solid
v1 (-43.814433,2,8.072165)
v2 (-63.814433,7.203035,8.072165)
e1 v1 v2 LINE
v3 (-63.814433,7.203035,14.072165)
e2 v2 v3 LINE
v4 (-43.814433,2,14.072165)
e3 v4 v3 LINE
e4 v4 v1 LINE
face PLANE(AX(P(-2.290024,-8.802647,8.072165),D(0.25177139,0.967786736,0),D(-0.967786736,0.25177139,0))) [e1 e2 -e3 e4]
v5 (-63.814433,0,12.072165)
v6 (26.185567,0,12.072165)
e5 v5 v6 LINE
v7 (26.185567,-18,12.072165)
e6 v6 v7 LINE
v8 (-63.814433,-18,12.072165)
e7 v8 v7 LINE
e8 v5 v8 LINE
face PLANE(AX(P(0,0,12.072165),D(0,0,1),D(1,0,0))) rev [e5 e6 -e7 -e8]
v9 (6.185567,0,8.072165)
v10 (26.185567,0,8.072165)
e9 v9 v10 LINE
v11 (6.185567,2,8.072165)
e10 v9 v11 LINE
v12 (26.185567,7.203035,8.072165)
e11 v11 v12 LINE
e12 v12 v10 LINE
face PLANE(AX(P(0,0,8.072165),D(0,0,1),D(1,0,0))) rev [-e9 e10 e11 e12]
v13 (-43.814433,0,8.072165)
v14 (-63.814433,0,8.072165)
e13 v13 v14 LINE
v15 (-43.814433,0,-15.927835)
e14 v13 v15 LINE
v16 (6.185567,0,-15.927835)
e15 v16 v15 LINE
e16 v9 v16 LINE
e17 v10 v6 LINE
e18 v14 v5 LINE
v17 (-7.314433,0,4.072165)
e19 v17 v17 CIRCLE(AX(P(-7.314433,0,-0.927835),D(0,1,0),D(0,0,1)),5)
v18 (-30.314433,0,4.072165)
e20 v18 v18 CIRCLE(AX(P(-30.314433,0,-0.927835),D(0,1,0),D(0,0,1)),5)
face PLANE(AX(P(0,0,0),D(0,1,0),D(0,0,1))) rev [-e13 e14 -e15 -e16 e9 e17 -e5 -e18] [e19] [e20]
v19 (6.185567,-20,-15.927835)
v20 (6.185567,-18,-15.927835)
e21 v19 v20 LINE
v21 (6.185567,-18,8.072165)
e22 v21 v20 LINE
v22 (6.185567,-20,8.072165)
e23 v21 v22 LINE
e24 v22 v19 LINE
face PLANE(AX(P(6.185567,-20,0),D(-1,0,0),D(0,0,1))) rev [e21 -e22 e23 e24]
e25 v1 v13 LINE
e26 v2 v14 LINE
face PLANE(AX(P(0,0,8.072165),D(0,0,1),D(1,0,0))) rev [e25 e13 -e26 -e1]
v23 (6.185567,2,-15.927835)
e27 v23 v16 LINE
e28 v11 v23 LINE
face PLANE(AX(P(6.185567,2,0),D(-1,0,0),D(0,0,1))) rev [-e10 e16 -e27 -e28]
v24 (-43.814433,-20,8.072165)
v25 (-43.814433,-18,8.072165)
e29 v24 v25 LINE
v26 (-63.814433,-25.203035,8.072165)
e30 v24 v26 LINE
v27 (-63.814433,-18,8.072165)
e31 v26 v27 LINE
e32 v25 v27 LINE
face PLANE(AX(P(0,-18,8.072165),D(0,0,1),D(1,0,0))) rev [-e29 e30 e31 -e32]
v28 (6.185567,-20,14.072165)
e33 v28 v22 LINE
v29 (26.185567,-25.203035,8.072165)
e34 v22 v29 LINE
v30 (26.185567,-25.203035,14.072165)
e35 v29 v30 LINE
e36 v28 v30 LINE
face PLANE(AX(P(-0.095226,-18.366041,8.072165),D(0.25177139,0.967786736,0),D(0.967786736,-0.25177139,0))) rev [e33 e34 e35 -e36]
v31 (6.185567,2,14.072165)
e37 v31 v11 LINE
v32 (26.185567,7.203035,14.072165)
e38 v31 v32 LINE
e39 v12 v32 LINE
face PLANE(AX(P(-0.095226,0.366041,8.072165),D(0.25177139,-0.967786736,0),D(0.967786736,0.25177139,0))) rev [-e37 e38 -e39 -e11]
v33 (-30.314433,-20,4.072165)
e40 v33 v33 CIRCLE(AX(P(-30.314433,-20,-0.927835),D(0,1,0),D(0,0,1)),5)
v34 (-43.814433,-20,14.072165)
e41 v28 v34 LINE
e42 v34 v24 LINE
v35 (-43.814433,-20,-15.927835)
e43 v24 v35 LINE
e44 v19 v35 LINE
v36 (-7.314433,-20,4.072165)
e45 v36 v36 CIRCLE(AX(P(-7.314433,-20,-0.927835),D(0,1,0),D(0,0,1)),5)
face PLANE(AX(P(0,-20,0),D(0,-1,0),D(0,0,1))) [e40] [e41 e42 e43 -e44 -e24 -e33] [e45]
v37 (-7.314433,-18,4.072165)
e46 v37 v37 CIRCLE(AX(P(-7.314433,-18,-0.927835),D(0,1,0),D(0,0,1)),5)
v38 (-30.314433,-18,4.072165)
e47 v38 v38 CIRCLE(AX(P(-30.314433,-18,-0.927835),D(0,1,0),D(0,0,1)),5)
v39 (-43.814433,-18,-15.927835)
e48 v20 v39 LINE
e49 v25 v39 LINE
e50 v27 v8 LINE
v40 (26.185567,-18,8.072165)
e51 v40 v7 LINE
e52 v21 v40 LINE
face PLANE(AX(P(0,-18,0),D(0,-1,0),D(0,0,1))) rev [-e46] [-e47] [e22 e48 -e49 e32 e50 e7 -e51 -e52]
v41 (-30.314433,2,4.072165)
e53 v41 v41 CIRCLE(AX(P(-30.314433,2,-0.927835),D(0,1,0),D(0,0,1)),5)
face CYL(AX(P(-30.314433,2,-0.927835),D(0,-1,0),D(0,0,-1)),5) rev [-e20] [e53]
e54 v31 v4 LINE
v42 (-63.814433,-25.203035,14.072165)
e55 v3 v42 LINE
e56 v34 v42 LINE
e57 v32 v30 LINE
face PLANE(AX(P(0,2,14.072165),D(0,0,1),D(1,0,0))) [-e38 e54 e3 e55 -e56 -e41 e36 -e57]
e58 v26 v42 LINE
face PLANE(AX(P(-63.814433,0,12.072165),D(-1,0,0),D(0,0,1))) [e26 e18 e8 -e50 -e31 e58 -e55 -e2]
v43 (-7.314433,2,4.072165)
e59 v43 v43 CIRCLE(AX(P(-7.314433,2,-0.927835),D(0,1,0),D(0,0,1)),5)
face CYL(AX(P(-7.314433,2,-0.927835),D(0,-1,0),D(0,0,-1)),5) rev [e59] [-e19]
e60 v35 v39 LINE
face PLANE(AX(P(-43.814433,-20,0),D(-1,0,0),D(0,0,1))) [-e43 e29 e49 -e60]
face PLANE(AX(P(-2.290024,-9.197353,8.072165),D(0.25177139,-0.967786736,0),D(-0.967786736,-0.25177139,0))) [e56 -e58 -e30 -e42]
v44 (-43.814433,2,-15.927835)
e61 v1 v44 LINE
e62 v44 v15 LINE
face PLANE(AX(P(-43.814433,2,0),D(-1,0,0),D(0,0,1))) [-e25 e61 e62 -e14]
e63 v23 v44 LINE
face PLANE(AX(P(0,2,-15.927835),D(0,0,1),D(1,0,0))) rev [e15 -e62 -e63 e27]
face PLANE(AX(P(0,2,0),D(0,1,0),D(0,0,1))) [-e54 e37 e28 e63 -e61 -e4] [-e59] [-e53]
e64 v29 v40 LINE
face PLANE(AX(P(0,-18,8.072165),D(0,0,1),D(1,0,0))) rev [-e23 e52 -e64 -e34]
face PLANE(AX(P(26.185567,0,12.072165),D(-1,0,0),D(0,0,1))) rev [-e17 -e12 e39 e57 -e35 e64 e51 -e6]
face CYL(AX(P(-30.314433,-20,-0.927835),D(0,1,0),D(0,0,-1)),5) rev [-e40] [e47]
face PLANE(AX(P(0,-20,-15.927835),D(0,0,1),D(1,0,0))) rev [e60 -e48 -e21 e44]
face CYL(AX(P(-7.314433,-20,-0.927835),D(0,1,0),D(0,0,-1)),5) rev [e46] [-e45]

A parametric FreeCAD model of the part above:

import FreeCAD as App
import Part
import Sketcher
from FreeCAD import Vector
Q = App.Units.Quantity


def add_polygon(sketch, points):
    """Adds a closed chain of lines whose ends are joined by coincident constraints."""
    first, n = sketch.GeometryCount, len(points)
    for a, b in zip(points, points[1:] + points[:1]):
        sketch.addGeometry(Part.LineSegment(App.Vector(*a, 0), App.Vector(*b, 0)), False)
    for i in range(n):
        sketch.addConstraint(Sketcher.Constraint("Coincident", first + i, 2, first + (i + 1) % n, 1))

doc = App.newDocument("Part")
body = doc.addObject("PartDesign::Body", "Body")

# Sketch on XZ plane
sketch1 = body.newObject("Sketcher::SketchObject", "Sketch")
sketch1.AttachmentSupport = (doc.getObject("XZ_Plane"), [""])
sketch1.MapMode = "FlatFace"
add_polygon(sketch1, [(-44, -16), (-44, 14), (6, 14), (6, -16)])  # lines 0-3
sketch1.addGeometry(Part.Circle(Vector(-30, -1, 0), Vector(0, 0, 1), 5), False)  # 4
sketch1.addGeometry(Part.Circle(Vector(-7, -1, 0), Vector(0, 0, 1), 5), False)  # 5
sketch1.addConstraint([
    Sketcher.Constraint("Vertical", 0),
    Sketcher.Constraint("Horizontal", 1),
    Sketcher.Constraint("Vertical", 2),
    Sketcher.Constraint("Horizontal", 3),
    Sketcher.Constraint("Equal", 4, 5),
    Sketcher.Constraint("Horizontal", 4, 3, 5, 3),
    Sketcher.Constraint("Diameter", 4, Q("10 mm")),
    Sketcher.Constraint("DistanceX", 1, 1, 1, 2, Q("50 mm")),
    Sketcher.Constraint("DistanceY", 0, 1, 0, 2, Q("30 mm")),
    Sketcher.Constraint("DistanceX", 4, 3, 5, 3, Q("23 mm")),
    Sketcher.Constraint("DistanceY", 4, 3, 0, 2, Q("15 mm")),
    Sketcher.Constraint("DistanceX", 0, 2, 4, 3, Q("13.5 mm")),
    Sketcher.Constraint("DistanceX", 4, 3, -1, 1, Q("30.314433 mm")),
    Sketcher.Constraint("DistanceY", 4, 3, -1, 1, Q("0.927835 mm")),
])
pad1 = body.newObject("PartDesign::Pad", "Pad")
pad1.Profile = sketch1
pad1.Length = 2
pad1.Reversed = True

# Sketch on XY plane
sketch2 = body.newObject("Sketcher::SketchObject", "Sketch001")
sketch2.AttachmentSupport = (doc.getObject("XY_Plane"), [""])
sketch2.MapMode = "FlatFace"
sketch2.AttachmentOffset = App.Placement(Vector(0, 0, 14.072165), App.Rotation())
add_polygon(sketch2, [(26, -9), (26, 0), (-64, 0), (-64, -9)])  # lines 0-3
sketch2.addConstraint([
    Sketcher.Constraint("Vertical", 0),
    Sketcher.Constraint("Horizontal", 1),
    Sketcher.Constraint("Vertical", 2),
    Sketcher.Constraint("Horizontal", 3),
    Sketcher.Constraint("PointOnObject", 0, 2, -1),
    Sketcher.Constraint("DistanceX", 1, 2, 1, 1, Q("90 mm")),
    Sketcher.Constraint("DistanceY", 0, 1, 0, 2, Q("9 mm")),
    Sketcher.Constraint("DistanceX", -1, 1, 0, 2, Q("26.185567 mm")),
])
pad2 = body.newObject("PartDesign::Pad", "Pad001")
pad2.Profile = sketch2
pad2.Length = 2
pad2.Reversed = True

# Sketch on XY plane
sketch3 = body.newObject("Sketcher::SketchObject", "Sketch002")
sketch3.AttachmentSupport = (doc.getObject("XY_Plane"), [""])
sketch3.MapMode = "FlatFace"
sketch3.AttachmentOffset = App.Placement(Vector(0, 0, 14.072165), App.Rotation())
add_polygon(sketch3, [(26.2, 0), (26.2, 7.2), (6.2, 2), (6.2, 0)])  # lines 0-3
add_polygon(sketch3, [(-43.8, 2), (-63.8, 7.2), (-63.8, 0), (-43.8, 0)])  # lines 4-7
sketch3.addConstraint([
    Sketcher.Constraint("Vertical", 0),
    Sketcher.Constraint("Vertical", 2),
    Sketcher.Constraint("Horizontal", 3),
    Sketcher.Constraint("Vertical", 5),
    Sketcher.Constraint("Horizontal", 6),
    Sketcher.Constraint("Vertical", 7),
    Sketcher.Constraint("PointOnObject", 2, 2, -1),
    Sketcher.Constraint("PointOnObject", 5, 2, -1),
    Sketcher.Constraint("Horizontal", 0, 2, 4, 2),
    Sketcher.Constraint("Horizontal", 1, 2, 7, 2),
    Sketcher.Constraint("Equal", 3, 6),
    Sketcher.Constraint("DistanceX", 3, 1, 3, 2, Q("20 mm")),
    Sketcher.Constraint("DistanceY", 2, 2, 2, 1, Q("2 mm")),
    Sketcher.Constraint("DistanceX", 4, 2, 1, 2, Q("70 mm")),
    Sketcher.Constraint("Distance", 1, Q("20.66571 mm")),
    Sketcher.Constraint("DistanceX", -1, 1, 0, 2, Q("26.185567 mm")),
])
pad3 = body.newObject("PartDesign::Pad", "Pad002")
pad3.Profile = sketch3
pad3.Length = 6
pad3.Reversed = True
body2 = doc.addObject("PartDesign::Body", "Body001")
doc.recompute()

body2.BaseFeature = body
doc.recompute()

mirroring = doc.addObject("Part::Mirroring", "Mirroring")
mirroring.Source = body
mirroring.Base = Vector(0, -9, 12.072165)
mirroring.Normal = Vector(0, -1, 0)
body3 = doc.addObject("PartDesign::Body", "Body002")
body3.BaseFeature = mirroring
boolean = body2.newObject("PartDesign::Boolean", "Boolean")
boolean.Type = "Fuse"
boolean.addObjects([body3])
doc.recompute()
mirroring.Visibility = False

doc.recompute()
